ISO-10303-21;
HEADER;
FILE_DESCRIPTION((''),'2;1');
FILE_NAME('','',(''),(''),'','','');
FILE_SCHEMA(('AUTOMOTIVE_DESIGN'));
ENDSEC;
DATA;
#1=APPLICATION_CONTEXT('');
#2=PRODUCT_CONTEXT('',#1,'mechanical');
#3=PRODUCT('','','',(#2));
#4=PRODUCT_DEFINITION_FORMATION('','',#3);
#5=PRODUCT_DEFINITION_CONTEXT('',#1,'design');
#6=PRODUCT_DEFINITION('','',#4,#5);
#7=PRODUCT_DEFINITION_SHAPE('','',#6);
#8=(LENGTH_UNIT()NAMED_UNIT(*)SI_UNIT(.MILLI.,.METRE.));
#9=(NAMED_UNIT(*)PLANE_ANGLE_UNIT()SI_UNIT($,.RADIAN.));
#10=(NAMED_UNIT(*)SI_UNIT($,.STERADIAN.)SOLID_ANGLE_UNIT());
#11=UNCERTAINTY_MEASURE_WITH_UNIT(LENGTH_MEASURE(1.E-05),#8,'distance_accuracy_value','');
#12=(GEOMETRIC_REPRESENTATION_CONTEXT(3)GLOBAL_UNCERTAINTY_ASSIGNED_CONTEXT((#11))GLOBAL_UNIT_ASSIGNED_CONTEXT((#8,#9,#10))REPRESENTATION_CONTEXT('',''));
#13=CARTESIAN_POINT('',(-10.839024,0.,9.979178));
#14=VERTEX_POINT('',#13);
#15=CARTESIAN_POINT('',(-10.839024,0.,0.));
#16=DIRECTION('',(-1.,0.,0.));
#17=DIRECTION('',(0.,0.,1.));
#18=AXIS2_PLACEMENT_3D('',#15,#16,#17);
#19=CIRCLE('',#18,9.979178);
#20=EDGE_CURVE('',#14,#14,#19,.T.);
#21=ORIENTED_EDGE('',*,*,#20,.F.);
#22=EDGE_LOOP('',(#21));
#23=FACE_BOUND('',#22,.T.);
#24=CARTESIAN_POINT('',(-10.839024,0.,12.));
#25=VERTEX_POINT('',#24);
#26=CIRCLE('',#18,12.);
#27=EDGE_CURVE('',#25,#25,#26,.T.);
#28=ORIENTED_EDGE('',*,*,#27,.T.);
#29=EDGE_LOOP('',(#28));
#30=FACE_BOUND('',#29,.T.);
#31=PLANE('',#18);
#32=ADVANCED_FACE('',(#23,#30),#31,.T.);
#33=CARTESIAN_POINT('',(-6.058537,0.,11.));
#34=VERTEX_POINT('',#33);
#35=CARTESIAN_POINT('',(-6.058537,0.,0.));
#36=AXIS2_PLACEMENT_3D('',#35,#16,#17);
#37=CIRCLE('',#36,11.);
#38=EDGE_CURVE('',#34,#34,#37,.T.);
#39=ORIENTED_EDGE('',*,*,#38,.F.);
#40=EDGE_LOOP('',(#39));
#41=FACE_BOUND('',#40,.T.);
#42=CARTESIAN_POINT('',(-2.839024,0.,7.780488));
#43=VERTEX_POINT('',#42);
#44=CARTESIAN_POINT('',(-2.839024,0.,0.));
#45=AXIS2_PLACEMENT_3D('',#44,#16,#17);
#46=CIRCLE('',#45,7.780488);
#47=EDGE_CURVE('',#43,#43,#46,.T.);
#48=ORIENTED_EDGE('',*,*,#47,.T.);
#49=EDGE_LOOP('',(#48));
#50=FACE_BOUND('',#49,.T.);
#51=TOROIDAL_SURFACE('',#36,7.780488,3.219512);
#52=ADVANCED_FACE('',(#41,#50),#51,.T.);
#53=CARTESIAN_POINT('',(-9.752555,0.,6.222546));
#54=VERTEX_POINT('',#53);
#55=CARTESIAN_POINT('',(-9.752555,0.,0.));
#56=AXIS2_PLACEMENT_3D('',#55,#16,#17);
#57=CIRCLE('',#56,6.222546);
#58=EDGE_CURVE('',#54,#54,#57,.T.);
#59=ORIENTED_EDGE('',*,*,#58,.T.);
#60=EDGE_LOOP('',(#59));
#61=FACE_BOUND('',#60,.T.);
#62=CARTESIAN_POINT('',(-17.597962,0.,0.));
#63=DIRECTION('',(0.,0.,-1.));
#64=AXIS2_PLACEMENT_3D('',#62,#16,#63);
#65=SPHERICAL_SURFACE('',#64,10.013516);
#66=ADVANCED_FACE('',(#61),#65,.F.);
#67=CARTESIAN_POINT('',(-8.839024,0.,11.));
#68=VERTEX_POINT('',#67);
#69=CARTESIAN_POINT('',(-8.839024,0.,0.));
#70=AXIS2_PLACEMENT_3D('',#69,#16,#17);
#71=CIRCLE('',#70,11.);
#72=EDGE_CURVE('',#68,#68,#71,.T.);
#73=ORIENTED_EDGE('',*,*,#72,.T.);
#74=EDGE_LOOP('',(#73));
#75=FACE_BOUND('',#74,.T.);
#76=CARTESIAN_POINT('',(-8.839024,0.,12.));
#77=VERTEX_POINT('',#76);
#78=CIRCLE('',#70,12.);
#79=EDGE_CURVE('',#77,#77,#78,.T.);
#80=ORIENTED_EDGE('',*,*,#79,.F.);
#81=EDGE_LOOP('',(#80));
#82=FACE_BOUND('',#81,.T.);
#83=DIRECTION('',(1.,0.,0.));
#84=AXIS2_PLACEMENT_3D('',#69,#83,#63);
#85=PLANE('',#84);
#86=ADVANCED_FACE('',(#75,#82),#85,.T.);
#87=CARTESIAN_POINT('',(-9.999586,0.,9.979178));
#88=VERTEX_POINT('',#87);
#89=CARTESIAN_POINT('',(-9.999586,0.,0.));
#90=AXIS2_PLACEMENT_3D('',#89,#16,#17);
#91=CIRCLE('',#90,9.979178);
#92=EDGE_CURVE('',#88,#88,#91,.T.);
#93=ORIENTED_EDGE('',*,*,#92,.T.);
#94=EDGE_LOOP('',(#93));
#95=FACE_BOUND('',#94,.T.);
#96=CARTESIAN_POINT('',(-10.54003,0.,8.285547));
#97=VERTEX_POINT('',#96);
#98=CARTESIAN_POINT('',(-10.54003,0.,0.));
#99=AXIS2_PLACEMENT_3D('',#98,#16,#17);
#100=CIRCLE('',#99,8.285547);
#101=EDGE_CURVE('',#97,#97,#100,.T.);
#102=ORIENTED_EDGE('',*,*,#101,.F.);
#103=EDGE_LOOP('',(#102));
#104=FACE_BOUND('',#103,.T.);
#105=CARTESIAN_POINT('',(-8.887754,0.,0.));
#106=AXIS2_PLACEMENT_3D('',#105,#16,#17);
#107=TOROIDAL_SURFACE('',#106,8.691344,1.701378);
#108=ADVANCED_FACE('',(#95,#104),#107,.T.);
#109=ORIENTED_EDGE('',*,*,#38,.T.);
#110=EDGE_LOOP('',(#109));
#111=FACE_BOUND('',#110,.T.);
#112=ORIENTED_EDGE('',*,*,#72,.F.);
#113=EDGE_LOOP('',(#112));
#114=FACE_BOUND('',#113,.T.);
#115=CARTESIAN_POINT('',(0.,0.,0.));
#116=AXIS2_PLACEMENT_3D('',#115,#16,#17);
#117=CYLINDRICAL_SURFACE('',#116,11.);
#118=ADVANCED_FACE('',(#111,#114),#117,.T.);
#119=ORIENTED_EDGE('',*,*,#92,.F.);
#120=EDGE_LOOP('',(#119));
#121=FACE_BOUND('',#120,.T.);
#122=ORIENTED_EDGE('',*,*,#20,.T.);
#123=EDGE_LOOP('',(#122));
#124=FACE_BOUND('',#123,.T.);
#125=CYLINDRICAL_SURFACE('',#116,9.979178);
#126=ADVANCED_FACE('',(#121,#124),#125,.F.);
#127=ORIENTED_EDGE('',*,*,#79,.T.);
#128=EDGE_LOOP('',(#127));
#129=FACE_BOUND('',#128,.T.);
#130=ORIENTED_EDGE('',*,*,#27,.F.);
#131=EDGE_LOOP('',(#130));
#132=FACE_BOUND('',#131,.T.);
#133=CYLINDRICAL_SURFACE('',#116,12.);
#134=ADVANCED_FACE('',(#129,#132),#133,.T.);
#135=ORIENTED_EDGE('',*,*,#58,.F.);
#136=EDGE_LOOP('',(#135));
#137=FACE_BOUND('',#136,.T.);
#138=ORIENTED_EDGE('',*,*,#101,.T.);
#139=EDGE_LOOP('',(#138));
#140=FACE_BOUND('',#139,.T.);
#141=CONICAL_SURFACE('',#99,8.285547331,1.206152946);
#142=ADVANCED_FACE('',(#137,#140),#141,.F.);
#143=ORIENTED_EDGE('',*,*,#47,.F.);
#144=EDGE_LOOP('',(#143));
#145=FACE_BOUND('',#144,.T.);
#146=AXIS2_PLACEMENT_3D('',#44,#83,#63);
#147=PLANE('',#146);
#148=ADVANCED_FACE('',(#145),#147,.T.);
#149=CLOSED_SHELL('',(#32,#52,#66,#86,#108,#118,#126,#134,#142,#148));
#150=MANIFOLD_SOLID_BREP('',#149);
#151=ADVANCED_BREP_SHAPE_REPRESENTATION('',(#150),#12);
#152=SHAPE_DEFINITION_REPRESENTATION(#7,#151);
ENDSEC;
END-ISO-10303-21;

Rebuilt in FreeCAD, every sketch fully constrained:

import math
import FreeCAD as App
import Part
import Sketcher

V = App.Vector

doc = App.newDocument("Part")
body = doc.addObject("PartDesign::Body", "Body")

# Sketch on XZ plane
sketch1 = body.newObject("Sketcher::SketchObject", "Sketch")
sketch1.AttachmentSupport = (doc.getObject("XZ_Plane"), [""])
sketch1.MapMode = "FlatFace"
sketch1.addGeometry(Part.LineSegment(V(-10.839024, -12, 0), V(-10.839024, -9.979178, 0)), False)
sketch1.addGeometry(Part.LineSegment(V(-10.839024, -9.979178, 0), V(-9.999586, -9.979178, 0)), False)
sketch1.addGeometry(Part.ArcOfCircle(Part.Circle(V(-8.887754, -8.691344, 0), V(0, 0, 1), 1.701378), math.radians(166.201335), math.radians(229.194793)), False)
sketch1.addGeometry(Part.LineSegment(V(-10.54003, -8.285547, 0), V(-9.752555, -6.222546, 0)), False)
sketch1.addGeometry(Part.ArcOfCircle(Part.Circle(V(-17.597962, 0, 0), V(0, 0, 1), 10.013516), math.radians(-38.419518), math.radians(0)), False)
sketch1.addGeometry(Part.LineSegment(V(-7.584446, 0, 0), V(-2.839024, 0, 0)), False)
sketch1.addGeometry(Part.LineSegment(V(-2.839024, 0, 0), V(-2.839024, -7.780488, 0)), False)
sketch1.addGeometry(Part.ArcOfCircle(Part.Circle(V(-6.058537, -7.780488, 0), V(0, 0, 1), 3.219512), math.radians(-90), math.radians(0)), False)
sketch1.addGeometry(Part.LineSegment(V(-6.058537, -11, 0), V(-8.839024, -11, 0)), False)
sketch1.addGeometry(Part.LineSegment(V(-8.839024, -11, 0), V(-8.839024, -12, 0)), False)
sketch1.addGeometry(Part.LineSegment(V(-8.839024, -12, 0), V(-10.839024, -12, 0)), False)
sketch1.addConstraint(Sketcher.Constraint("Coincident", 0, 2, 1, 1))
sketch1.addConstraint(Sketcher.Constraint("Coincident", 1, 2, 2, 2))
sketch1.addConstraint(Sketcher.Constraint("Coincident", 2, 1, 3, 1))
sketch1.addConstraint(Sketcher.Constraint("Coincident", 3, 2, 4, 1))
sketch1.addConstraint(Sketcher.Constraint("Coincident", 4, 2, 5, 1))
sketch1.addConstraint(Sketcher.Constraint("Coincident", 5, 2, 6, 1))
sketch1.addConstraint(Sketcher.Constraint("Tangent", 6, 2, 7, 2))
sketch1.addConstraint(Sketcher.Constraint("Tangent", 7, 1, 8, 1))
sketch1.addConstraint(Sketcher.Constraint("Coincident", 8, 2, 9, 1))
sketch1.addConstraint(Sketcher.Constraint("Coincident", 9, 2, 10, 1))
sketch1.addConstraint(Sketcher.Constraint("Coincident", 10, 2, 0, 1))
sketch1.addConstraint(Sketcher.Constraint("Vertical", 0))
sketch1.addConstraint(Sketcher.Constraint("Horizontal", 1))
sketch1.addConstraint(Sketcher.Constraint("Horizontal", 5))
sketch1.addConstraint(Sketcher.Constraint("Vertical", 6))
sketch1.addConstraint(Sketcher.Constraint("Horizontal", 8))
sketch1.addConstraint(Sketcher.Constraint("Vertical", 9))
sketch1.addConstraint(Sketcher.Constraint("Horizontal", 10))
sketch1.addConstraint(Sketcher.Constraint("PointOnObject", 4, 3, -1))
sketch1.addConstraint(Sketcher.Constraint("PointOnObject", 4, 2, -1))
sketch1.addConstraint(Sketcher.Constraint("DistanceX", 10, 2, 10, 1, 2.0))
sketch1.addConstraint(Sketcher.Constraint("DistanceY", 9, 2, 9, 1, 1.0))
sketch1.addConstraint(Sketcher.Constraint("DistanceY", 7, 1, -1, 1, 11.0))
sketch1.addConstraint(Sketcher.Constraint("Radius", 2, 1.701378))
sketch1.addConstraint(Sketcher.Constraint("Radius", 4, 10.013516))
sketch1.addConstraint(Sketcher.Constraint("Radius", 7, 3.219512))
sketch1.addConstraint(Sketcher.Constraint("DistanceY", 2, 1, 3, 2, 2.063001))
sketch1.addConstraint(Sketcher.Constraint("DistanceX", 1, 1, 1, 2, 0.839438))
sketch1.addConstraint(Sketcher.Constraint("DistanceX", 5, 1, 5, 2, 4.745422))
sketch1.addConstraint(Sketcher.Constraint("DistanceX", 3, 2, 2, 3, 0.864801))
sketch1.addConstraint(Sketcher.Constraint("DistanceY", 2, 3, 3, 2, 2.468798))
sketch1.addConstraint(Sketcher.Constraint("DistanceX", 8, 2, 8, 1, 2.780488))
sketch1.addConstraint(Sketcher.Constraint("DistanceY", 0, 1, 0, 2, 2.020822))
sketch1.addConstraint(Sketcher.Constraint("DistanceX", 2, 1, -1, 1, 10.54003))
revolution = body.newObject("PartDesign::Revolution", "Revolution")
revolution.Profile = sketch1
revolution.ReferenceAxis = (sketch1, ["H_Axis"])
revolution.Angle = 360

doc.recompute()
